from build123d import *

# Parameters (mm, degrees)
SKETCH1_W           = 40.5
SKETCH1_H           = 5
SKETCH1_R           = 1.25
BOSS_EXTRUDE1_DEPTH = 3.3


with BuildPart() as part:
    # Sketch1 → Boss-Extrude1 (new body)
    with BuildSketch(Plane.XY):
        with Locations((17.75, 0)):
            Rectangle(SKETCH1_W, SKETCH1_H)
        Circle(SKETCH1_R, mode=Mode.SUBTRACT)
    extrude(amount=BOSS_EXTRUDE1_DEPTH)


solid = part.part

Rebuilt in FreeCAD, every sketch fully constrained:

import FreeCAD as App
import Part
import Sketcher

V = App.Vector
Q = App.Units.Quantity

doc = App.newDocument("Part")
body = doc.addObject("PartDesign::Body", "Body")

sketch1 = body.newObject("Sketcher::SketchObject", "Sketch")
sketch1.AttachmentSupport = (doc.getObject("XY_Plane"), [""])
sketch1.MapMode = "FlatFace"
sketch1.addGeometry(Part.LineSegment(V(-2.5, 2.5, 0), V(-2.5, -2.5, 0)), False)
sketch1.addGeometry(Part.LineSegment(V(-2.5, -2.5, 0), V(38, -2.5, 0)), False)
sketch1.addGeometry(Part.LineSegment(V(38, -2.5, 0), V(38, 2.5, 0)), False)
sketch1.addGeometry(Part.LineSegment(V(38, 2.5, 0), V(-2.5, 2.5, 0)), False)
sketch1.addGeometry(Part.Circle(V(0, 0, 0), V(0, 0, 1), 1.2), False)
sketch1.addConstraint(Sketcher.Constraint("Coincident", 0, 2, 1, 1))
sketch1.addConstraint(Sketcher.Constraint("Coincident", 1, 2, 2, 1))
sketch1.addConstraint(Sketcher.Constraint("Coincident", 2, 2, 3, 1))
sketch1.addConstraint(Sketcher.Constraint("Coincident", 3, 2, 0, 1))
sketch1.addConstraint(Sketcher.Constraint("Vertical", 0))
sketch1.addConstraint(Sketcher.Constraint("Horizontal", 1))
sketch1.addConstraint(Sketcher.Constraint("Vertical", 2))
sketch1.addConstraint(Sketcher.Constraint("Horizontal", 3))
sketch1.addConstraint(Sketcher.Constraint("Coincident", 4, 3, -1, 1))
sketch1.addConstraint(Sketcher.Constraint("Diameter", 4, Q("2.5 mm")))
sketch1.addConstraint(Sketcher.Constraint("DistanceY", 0, 2, 0, 1, Q("5 mm")))
sketch1.addConstraint(Sketcher.Constraint("DistanceX", 1, 1, 1, 2, Q("40.5 mm")))
sketch1.addConstraint(Sketcher.Constraint("DistanceX", -1, 1, 1, 2, Q("38 mm")))
sketch1.addConstraint(Sketcher.Constraint("DistanceY", 0, 2, -1, 1, Q("2.5 mm")))
pad1 = body.newObject("PartDesign::Pad", "Pad")
pad1.Profile = sketch1
pad1.Length = 3.3

doc.recompute()
